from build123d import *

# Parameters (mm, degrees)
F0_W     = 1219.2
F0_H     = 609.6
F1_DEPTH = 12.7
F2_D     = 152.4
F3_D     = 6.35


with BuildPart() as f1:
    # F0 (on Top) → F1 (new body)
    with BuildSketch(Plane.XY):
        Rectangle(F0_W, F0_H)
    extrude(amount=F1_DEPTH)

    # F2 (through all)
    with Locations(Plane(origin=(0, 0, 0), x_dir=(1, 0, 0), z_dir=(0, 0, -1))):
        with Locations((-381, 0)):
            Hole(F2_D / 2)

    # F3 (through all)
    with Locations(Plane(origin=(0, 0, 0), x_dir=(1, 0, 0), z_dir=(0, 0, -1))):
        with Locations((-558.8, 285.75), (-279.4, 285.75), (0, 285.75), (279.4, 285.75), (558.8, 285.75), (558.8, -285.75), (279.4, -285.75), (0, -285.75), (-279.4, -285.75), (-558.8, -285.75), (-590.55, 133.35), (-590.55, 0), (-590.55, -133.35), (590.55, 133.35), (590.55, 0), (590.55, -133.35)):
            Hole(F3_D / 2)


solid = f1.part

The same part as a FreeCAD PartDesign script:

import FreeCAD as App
import Part
import Sketcher

V = App.Vector
Q = App.Units.Quantity

doc = App.newDocument("Part")
body = doc.addObject("PartDesign::Body", "Body")

# Sketch on XY plane
sketch1 = body.newObject("Sketcher::SketchObject", "Sketch")
sketch1.AttachmentSupport = (doc.getObject("XY_Plane"), [""])
sketch1.MapMode = "FlatFace"
sketch1.addGeometry(Part.LineSegment(V(-609.6, 304.8, 0), V(-609.6, -304.8, 0)), False)
sketch1.addGeometry(Part.LineSegment(V(-609.6, -304.8, 0), V(609.6, -304.8, 0)), False)
sketch1.addGeometry(Part.LineSegment(V(609.6, -304.8, 0), V(609.6, 304.8, 0)), False)
sketch1.addGeometry(Part.LineSegment(V(609.6, 304.8, 0), V(-609.6, 304.8, 0)), False)
sketch1.addConstraint(Sketcher.Constraint("Coincident", 0, 2, 1, 1))
sketch1.addConstraint(Sketcher.Constraint("Coincident", 1, 2, 2, 1))
sketch1.addConstraint(Sketcher.Constraint("Coincident", 2, 2, 3, 1))
sketch1.addConstraint(Sketcher.Constraint("Coincident", 3, 2, 0, 1))
sketch1.addConstraint(Sketcher.Constraint("Vertical", 0))
sketch1.addConstraint(Sketcher.Constraint("Horizontal", 1))
sketch1.addConstraint(Sketcher.Constraint("Vertical", 2))
sketch1.addConstraint(Sketcher.Constraint("Horizontal", 3))
sketch1.addConstraint(Sketcher.Constraint("Symmetric", 0, 2, 2, 2, -1, 1))
sketch1.addConstraint(Sketcher.Constraint("DistanceX", 1, 1, 1, 2, Q("48 in")))
sketch1.addConstraint(Sketcher.Constraint("DistanceY", 0, 2, 0, 1, Q("24 in")))
pad1 = body.newObject("PartDesign::Pad", "Pad")
pad1.Profile = sketch1
pad1.Length = Q("0.5 in")

# Sketch on XY plane
sketch2 = body.newObject("Sketcher::SketchObject", "Sketch001")
sketch2.AttachmentSupport = (doc.getObject("XY_Plane"), [""])
sketch2.MapMode = "FlatFace"
sketch2.addGeometry(Part.Circle(V(-381, 0, 0), V(0, 0, 1), 76.2), False)
sketch2.addConstraint(Sketcher.Constraint("PointOnObject", 0, 3, -1))
sketch2.addConstraint(Sketcher.Constraint("Diameter", 0, Q("6 in")))
sketch2.addConstraint(Sketcher.Constraint("DistanceX", 0, 3, -1, 1, Q("15 in")))
doc.recompute()
hole = body.newObject("PartDesign::Hole", "Hole")
hole.Profile = sketch2
hole.ThreadType = "None"
hole.Diameter = Q("6 in")
hole.DepthType = "ThroughAll"
hole.Reversed = True

# Sketch on XY plane
sketch3 = body.newObject("Sketcher::SketchObject", "Sketch002")
sketch3.AttachmentSupport = (doc.getObject("XY_Plane"), [""])
sketch3.MapMode = "FlatFace"
sketch3.addGeometry(Part.Circle(V(-558.8, -285.75, 0), V(0, 0, 1), 3.175), False)
sketch3.addGeometry(Part.Circle(V(-279.4, -285.75, 0), V(0, 0, 1), 3.175), False)
sketch3.addGeometry(Part.Circle(V(0, -285.75, 0), V(0, 0, 1), 3.175), False)
sketch3.addGeometry(Part.Circle(V(279.4, -285.75, 0), V(0, 0, 1), 3.175), False)
sketch3.addGeometry(Part.Circle(V(558.8, -285.75, 0), V(0, 0, 1), 3.175), False)
sketch3.addGeometry(Part.Circle(V(558.8, 285.75, 0), V(0, 0, 1), 3.175), False)
sketch3.addGeometry(Part.Circle(V(279.4, 285.75, 0), V(0, 0, 1), 3.175), False)
sketch3.addGeometry(Part.Circle(V(0, 285.75, 0), V(0, 0, 1), 3.175), False)
sketch3.addGeometry(Part.Circle(V(-279.4, 285.75, 0), V(0, 0, 1), 3.175), False)
sketch3.addGeometry(Part.Circle(V(-558.8, 285.75, 0), V(0, 0, 1), 3.175), False)
sketch3.addGeometry(Part.Circle(V(-590.55, -133.35, 0), V(0, 0, 1), 3.175), False)
sketch3.addGeometry(Part.Circle(V(-590.55, 0, 0), V(0, 0, 1), 3.175), False)
sketch3.addGeometry(Part.Circle(V(-590.55, 133.35, 0), V(0, 0, 1), 3.175), False)
sketch3.addGeometry(Part.Circle(V(590.55, -133.35, 0), V(0, 0, 1), 3.175), False)
sketch3.addGeometry(Part.Circle(V(590.55, 0, 0), V(0, 0, 1), 3.175), False)
sketch3.addGeometry(Part.Circle(V(590.55, 133.35, 0), V(0, 0, 1), 3.175), False)
sketch3.addConstraint(Sketcher.Constraint("Equal", 0, 1))
sketch3.addConstraint(Sketcher.Constraint("Equal", 1, 2))
sketch3.addConstraint(Sketcher.Constraint("Equal", 2, 3))
sketch3.addConstraint(Sketcher.Constraint("Equal", 3, 4))
sketch3.addConstraint(Sketcher.Constraint("Equal", 4, 5))
sketch3.addConstraint(Sketcher.Constraint("Equal", 5, 6))
sketch3.addConstraint(Sketcher.Constraint("Equal", 6, 7))
sketch3.addConstraint(Sketcher.Constraint("Equal", 7, 8))
sketch3.addConstraint(Sketcher.Constraint("Equal", 8, 9))
sketch3.addConstraint(Sketcher.Constraint("Equal", 9, 10))
sketch3.addConstraint(Sketcher.Constraint("Equal", 10, 11))
sketch3.addConstraint(Sketcher.Constraint("Equal", 11, 12))
sketch3.addConstraint(Sketcher.Constraint("Equal", 12, 13))
sketch3.addConstraint(Sketcher.Constraint("Equal", 13, 14))
sketch3.addConstraint(Sketcher.Constraint("Equal", 14, 15))
sketch3.addConstraint(Sketcher.Constraint("Symmetric", 0, 3, 5, 3, -1, 1))
sketch3.addConstraint(Sketcher.Constraint("Symmetric", 1, 3, 6, 3, -1, 1))
sketch3.addConstraint(Sketcher.Constraint("Symmetric", 2, 3, 7, 3, -1, 1))
sketch3.addConstraint(Sketcher.Constraint("Symmetric", 3, 3, 8, 3, -1, 1))
sketch3.addConstraint(Sketcher.Constraint("Symmetric", 4, 3, 9, 3, -1, 1))
sketch3.addConstraint(Sketcher.Constraint("Symmetric", 12, 3, 13, 3, -1, 1))
sketch3.addConstraint(Sketcher.Constraint("Symmetric", 11, 3, 14, 3, -1, 1))
sketch3.addConstraint(Sketcher.Constraint("Symmetric", 10, 3, 15, 3, -1, 1))
sketch3.addConstraint(Sketcher.Constraint("Symmetric", 1, 3, 3, 3, -2))
sketch3.addConstraint(Sketcher.Constraint("Symmetric", 0, 3, 4, 3, -2))
sketch3.addConstraint(Sketcher.Constraint("Symmetric", 10, 3, 13, 3, -2))
sketch3.addConstraint(Sketcher.Constraint("PointOnObject", 2, 3, -2))
sketch3.addConstraint(Sketcher.Constraint("PointOnObject", 11, 3, -1))
sketch3.addConstraint(Sketcher.Constraint("Horizontal", 0, 3, 1, 3))
sketch3.addConstraint(Sketcher.Constraint("Horizontal", 1, 3, 2, 3))
sketch3.addConstraint(Sketcher.Constraint("Vertical", 10, 3, 11, 3))
sketch3.addConstraint(Sketcher.Constraint("Diameter", 0, Q("0.25 in")))
sketch3.addConstraint(Sketcher.Constraint("DistanceX", 0, 3, -1, 1, Q("22 in")))
sketch3.addConstraint(Sketcher.Constraint("DistanceX", 1, 3, -1, 1, Q("11 in")))
sketch3.addConstraint(Sketcher.Constraint("DistanceY", 0, 3, 10, 3, Q("6 in")))
sketch3.addConstraint(Sketcher.Constraint("DistanceY", 4, 3, 5, 3, Q("22.5 in")))
sketch3.addConstraint(Sketcher.Constraint("DistanceX", 10, 3, -1, 1, Q("23.25 in")))
doc.recompute()
hole2 = body.newObject("PartDesign::Hole", "Hole001")
hole2.Profile = sketch3
hole2.ThreadType = "None"
hole2.Diameter = Q("0.25 in")
hole2.DepthType = "ThroughAll"
hole2.Reversed = True

doc.recompute()
